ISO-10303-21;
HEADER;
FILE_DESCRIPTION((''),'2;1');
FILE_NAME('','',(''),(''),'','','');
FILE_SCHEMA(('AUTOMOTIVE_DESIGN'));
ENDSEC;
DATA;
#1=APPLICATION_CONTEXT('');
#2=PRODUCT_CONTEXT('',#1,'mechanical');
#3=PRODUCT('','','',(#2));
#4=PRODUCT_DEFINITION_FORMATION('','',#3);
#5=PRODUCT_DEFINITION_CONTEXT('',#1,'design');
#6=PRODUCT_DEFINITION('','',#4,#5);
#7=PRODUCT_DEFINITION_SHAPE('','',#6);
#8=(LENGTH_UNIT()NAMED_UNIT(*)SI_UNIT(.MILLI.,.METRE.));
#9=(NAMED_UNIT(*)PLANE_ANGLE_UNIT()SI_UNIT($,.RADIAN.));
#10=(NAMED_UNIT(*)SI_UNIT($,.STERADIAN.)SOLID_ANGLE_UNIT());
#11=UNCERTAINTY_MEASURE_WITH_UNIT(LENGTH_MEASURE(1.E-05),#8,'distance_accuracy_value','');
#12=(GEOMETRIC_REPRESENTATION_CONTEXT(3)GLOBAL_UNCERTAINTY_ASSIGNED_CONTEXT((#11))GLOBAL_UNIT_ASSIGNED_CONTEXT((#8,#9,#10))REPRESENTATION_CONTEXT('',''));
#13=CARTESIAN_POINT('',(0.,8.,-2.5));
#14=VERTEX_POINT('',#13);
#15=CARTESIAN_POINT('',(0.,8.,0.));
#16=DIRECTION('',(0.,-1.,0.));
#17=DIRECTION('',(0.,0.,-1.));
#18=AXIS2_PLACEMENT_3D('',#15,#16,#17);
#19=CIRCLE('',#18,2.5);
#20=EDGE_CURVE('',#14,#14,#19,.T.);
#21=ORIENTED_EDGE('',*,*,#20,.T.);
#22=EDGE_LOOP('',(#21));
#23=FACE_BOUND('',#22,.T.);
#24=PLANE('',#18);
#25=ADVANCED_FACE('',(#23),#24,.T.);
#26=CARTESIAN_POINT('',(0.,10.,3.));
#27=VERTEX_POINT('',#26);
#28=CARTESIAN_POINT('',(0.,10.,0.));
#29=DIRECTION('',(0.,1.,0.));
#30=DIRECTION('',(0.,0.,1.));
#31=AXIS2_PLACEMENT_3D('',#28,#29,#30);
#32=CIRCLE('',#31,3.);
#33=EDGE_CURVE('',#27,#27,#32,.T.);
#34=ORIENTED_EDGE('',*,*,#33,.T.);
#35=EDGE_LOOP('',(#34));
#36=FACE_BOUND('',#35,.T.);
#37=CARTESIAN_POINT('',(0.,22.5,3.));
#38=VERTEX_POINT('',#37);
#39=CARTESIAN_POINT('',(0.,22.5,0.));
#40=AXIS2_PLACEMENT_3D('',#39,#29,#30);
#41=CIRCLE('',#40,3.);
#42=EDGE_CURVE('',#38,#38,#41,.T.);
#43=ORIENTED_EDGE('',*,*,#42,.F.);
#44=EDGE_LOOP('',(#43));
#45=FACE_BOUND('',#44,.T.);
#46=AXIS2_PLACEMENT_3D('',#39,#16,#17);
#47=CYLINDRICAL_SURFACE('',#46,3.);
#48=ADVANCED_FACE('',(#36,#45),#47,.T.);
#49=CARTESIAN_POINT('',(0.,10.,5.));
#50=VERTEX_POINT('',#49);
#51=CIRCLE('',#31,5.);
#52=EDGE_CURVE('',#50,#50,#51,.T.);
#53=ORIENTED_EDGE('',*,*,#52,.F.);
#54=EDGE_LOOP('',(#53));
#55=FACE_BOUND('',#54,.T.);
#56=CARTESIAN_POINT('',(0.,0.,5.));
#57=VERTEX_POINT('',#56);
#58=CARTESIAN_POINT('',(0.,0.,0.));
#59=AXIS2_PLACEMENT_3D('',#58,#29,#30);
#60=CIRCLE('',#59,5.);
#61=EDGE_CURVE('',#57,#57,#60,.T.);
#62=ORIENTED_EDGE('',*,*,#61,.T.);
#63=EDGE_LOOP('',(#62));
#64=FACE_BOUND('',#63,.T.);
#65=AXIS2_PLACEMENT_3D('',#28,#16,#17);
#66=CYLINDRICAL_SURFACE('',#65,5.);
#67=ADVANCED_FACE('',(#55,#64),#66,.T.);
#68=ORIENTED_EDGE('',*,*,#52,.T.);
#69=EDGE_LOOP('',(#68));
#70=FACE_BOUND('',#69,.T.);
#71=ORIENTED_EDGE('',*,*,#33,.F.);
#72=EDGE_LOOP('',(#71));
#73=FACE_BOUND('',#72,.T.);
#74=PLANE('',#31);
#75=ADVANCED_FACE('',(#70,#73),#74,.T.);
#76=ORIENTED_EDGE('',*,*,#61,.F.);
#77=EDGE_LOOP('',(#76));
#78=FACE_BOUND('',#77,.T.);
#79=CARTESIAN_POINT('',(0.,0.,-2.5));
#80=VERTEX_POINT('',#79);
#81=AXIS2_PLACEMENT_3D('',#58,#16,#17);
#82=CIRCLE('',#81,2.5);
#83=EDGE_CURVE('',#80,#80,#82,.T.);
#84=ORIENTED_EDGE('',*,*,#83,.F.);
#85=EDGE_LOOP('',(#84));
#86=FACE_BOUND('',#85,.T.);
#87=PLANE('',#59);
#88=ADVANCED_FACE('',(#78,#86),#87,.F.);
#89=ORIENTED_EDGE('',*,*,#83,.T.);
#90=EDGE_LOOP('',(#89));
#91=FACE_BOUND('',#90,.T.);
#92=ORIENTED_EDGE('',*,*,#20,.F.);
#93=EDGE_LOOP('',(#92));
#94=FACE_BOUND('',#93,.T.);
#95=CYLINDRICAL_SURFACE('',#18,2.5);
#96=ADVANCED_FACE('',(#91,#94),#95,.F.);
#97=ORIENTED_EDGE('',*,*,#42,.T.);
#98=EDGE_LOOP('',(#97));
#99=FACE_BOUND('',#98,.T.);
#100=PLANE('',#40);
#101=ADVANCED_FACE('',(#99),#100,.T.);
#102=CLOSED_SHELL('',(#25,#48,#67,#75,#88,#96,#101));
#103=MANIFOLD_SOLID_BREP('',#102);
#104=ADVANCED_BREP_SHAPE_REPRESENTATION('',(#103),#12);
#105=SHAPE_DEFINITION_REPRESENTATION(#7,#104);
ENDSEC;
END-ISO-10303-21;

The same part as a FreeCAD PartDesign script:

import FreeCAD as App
import Part
import Sketcher

doc = App.newDocument("Part")
body = doc.addObject("PartDesign::Body", "Body")

# Sketch on XZ plane
sketch1 = doc.addObject("Sketcher::SketchObject", "Sketch")
body.addObject(sketch1)
sketch1.AttachmentSupport = (doc.XZ_Plane, [""])
sketch1.MapMode = "FlatFace"
sketch1.addGeometry(Part.Circle(App.Vector(0, 0, 0), App.Vector(0, 0, 1), 5), False)
sketch1.addConstraint(Sketcher.Constraint("Coincident", 0, 3, -1, 1))
sketch1.addConstraint(Sketcher.Constraint("Diameter", 0, 10.0))
pad1 = doc.addObject("PartDesign::Pad", "Pad")
body.addObject(pad1)
pad1.Profile = sketch1
pad1.Length = 10
pad1.Reversed = True

# Sketch on XZ plane
sketch2 = doc.addObject("Sketcher::SketchObject", "Sketch001")
body.addObject(sketch2)
sketch2.AttachmentSupport = (doc.XZ_Plane, [""])
sketch2.MapMode = "FlatFace"
sketch2.addGeometry(Part.Circle(App.Vector(0, 0, 0), App.Vector(0, 0, 1), 2.5), False)
sketch2.addConstraint(Sketcher.Constraint("Coincident", 0, 3, -1, 1))
sketch2.addConstraint(Sketcher.Constraint("Diameter", 0, 5.0))
pocket1 = doc.addObject("PartDesign::Pocket", "Pocket")
body.addObject(pocket1)
pocket1.Profile = sketch2
pocket1.Length = 8

# Sketch on XZ plane
sketch3 = doc.addObject("Sketcher::SketchObject", "Sketch002")
body.addObject(sketch3)
sketch3.AttachmentSupport = (doc.XZ_Plane, [""])
sketch3.MapMode = "FlatFace"
sketch3.AttachmentOffset = App.Placement(App.Vector(0, 0, -10), App.Rotation())
sketch3.addGeometry(Part.Circle(App.Vector(0, 0, 0), App.Vector(0, 0, 1), 3), False)
sketch3.addConstraint(Sketcher.Constraint("Coincident", 0, 3, -1, 1))
sketch3.addConstraint(Sketcher.Constraint("Diameter", 0, 6.0))
pad2 = doc.addObject("PartDesign::Pad", "Pad001")
body.addObject(pad2)
pad2.Profile = sketch3
pad2.Length = 12.5
pad2.Reversed = True

doc.recompute()
